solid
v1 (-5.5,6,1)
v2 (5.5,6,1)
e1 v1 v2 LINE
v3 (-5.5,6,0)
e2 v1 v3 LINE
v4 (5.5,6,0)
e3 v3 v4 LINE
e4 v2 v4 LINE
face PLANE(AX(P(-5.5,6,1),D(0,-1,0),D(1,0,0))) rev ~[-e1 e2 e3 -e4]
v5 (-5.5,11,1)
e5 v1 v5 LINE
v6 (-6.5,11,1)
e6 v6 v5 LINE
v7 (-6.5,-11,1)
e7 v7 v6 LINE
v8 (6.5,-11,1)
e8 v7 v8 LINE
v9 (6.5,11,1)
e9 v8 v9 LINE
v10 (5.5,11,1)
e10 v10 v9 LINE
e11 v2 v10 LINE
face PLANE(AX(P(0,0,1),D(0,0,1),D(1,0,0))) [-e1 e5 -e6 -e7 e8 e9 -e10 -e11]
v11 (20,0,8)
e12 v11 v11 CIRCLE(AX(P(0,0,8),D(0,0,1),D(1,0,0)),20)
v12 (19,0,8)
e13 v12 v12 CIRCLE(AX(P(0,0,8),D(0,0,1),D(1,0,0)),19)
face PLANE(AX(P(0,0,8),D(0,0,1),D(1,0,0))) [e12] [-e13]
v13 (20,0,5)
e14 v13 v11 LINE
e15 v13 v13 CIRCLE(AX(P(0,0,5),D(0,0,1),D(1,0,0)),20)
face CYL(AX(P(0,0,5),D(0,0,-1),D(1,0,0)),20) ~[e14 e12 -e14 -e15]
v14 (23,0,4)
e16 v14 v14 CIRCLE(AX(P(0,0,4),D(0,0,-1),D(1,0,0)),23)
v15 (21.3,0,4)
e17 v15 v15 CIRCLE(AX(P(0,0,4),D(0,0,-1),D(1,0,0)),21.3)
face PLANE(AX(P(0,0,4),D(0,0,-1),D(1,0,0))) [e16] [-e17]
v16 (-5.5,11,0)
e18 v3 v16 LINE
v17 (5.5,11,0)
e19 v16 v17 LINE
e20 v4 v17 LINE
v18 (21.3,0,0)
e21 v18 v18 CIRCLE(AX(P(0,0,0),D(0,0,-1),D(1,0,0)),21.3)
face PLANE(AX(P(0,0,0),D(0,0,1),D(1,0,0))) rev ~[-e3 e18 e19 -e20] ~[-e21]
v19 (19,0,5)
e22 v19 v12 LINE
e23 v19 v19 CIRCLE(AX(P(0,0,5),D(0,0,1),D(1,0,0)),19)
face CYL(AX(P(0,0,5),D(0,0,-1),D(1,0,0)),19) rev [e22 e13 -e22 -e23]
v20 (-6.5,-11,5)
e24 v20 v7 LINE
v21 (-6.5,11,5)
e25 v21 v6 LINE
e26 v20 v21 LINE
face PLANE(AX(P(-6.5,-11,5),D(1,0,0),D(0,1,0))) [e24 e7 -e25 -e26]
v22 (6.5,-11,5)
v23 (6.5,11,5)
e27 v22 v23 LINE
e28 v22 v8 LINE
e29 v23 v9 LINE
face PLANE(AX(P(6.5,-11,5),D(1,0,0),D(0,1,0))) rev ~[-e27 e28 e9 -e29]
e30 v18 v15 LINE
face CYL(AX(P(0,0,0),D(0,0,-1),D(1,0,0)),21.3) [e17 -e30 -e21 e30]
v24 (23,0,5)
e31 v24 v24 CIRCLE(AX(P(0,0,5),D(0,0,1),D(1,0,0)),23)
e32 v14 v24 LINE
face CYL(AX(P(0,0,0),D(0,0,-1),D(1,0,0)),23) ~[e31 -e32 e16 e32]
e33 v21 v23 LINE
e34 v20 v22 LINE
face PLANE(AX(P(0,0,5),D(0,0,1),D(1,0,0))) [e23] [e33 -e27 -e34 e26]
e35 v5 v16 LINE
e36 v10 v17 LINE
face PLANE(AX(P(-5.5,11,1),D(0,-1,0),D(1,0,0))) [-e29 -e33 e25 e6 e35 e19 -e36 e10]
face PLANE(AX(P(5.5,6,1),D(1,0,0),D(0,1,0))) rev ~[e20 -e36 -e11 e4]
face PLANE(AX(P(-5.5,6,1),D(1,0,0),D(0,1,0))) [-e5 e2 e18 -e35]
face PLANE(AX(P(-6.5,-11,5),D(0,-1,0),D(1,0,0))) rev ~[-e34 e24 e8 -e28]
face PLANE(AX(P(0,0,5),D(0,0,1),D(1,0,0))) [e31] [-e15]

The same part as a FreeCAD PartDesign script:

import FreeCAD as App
import Part
import Sketcher
from FreeCAD import Vector

doc = App.newDocument("Part")
body = doc.addObject("PartDesign::Body", "Body")

# Sketch on XY plane
sketch1 = body.newObject("Sketcher::SketchObject", "Sketch")
sketch1.AttachmentSupport = (doc.getObject("XY_Plane"), [""])
sketch1.MapMode = "FlatFace"
sketch1.addGeometry(Part.Circle(Vector(0, 0, 0), Vector(0, 0, 1), 23), False)
sketch1.addConstraint([
    Sketcher.Constraint("Coincident", 0, 3, -1, 1),
    Sketcher.Constraint("Diameter", 0, 46.0),
])
pad1 = body.newObject("PartDesign::Pad", "Pad")
pad1.Profile = sketch1
pad1.Length = 5

# Sketch on XY plane
sketch2 = body.newObject("Sketcher::SketchObject", "Sketch001")
sketch2.AttachmentSupport = (doc.getObject("XY_Plane"), [""])
sketch2.MapMode = "FlatFace"
sketch2.AttachmentOffset = App.Placement(Vector(0, 0, 5), App.Rotation())
sketch2.addGeometry([
    Part.LineSegment(Vector(-6, 11, 0), Vector(-6, -11, 0)),
    Part.LineSegment(Vector(-6, -11, 0), Vector(6, -11, 0)),
    Part.LineSegment(Vector(6, -11, 0), Vector(6, 11, 0)),
    Part.LineSegment(Vector(6, 11, 0), Vector(-6, 11, 0)),
], False)
sketch2.addConstraint([
    Sketcher.Constraint("Coincident", 0, 2, 1, 1),
    Sketcher.Constraint("Coincident", 1, 2, 2, 1),
    Sketcher.Constraint("Coincident", 2, 2, 3, 1),
    Sketcher.Constraint("Coincident", 3, 2, 0, 1),
    Sketcher.Constraint("Vertical", 0),
    Sketcher.Constraint("Horizontal", 1),
    Sketcher.Constraint("Vertical", 2),
    Sketcher.Constraint("Horizontal", 3),
    Sketcher.Constraint("Symmetric", 0, 2, 2, 2, -1, 1),
    Sketcher.Constraint("DistanceX", 1, 1, 1, 2, 13.0),
    Sketcher.Constraint("DistanceY", 0, 2, 0, 1, 22.0),
])
pocket1 = body.newObject("PartDesign::Pocket", "Pocket")
pocket1.Profile = sketch2
pocket1.Length = 4

# Sketch on XY plane
sketch3 = body.newObject("Sketcher::SketchObject", "Sketch002")
sketch3.AttachmentSupport = (doc.getObject("XY_Plane"), [""])
sketch3.MapMode = "FlatFace"
sketch3.AttachmentOffset = App.Placement(Vector(0, 0, 1), App.Rotation())
sketch3.addGeometry([
    Part.LineSegment(Vector(-6, 11, 0), Vector(-6, 6, 0)),
    Part.LineSegment(Vector(-6, 6, 0), Vector(6, 6, 0)),
    Part.LineSegment(Vector(6, 6, 0), Vector(6, 11, 0)),
    Part.LineSegment(Vector(6, 11, 0), Vector(-6, 11, 0)),
], False)
sketch3.addConstraint([
    Sketcher.Constraint("Coincident", 0, 2, 1, 1),
    Sketcher.Constraint("Coincident", 1, 2, 2, 1),
    Sketcher.Constraint("Coincident", 2, 2, 3, 1),
    Sketcher.Constraint("Coincident", 3, 2, 0, 1),
    Sketcher.Constraint("Vertical", 0),
    Sketcher.Constraint("Horizontal", 1),
    Sketcher.Constraint("Vertical", 2),
    Sketcher.Constraint("Horizontal", 3),
    Sketcher.Constraint("DistanceX", 1, 1, 1, 2, 11.0),
    Sketcher.Constraint("DistanceY", 0, 2, 0, 1, 5.0),
    Sketcher.Constraint("DistanceY", -1, 1, 0, 2, 6.0),
    Sketcher.Constraint("DistanceX", 0, 2, -1, 1, 5.5),
])
pocket2 = body.newObject("PartDesign::Pocket", "Pocket001")
pocket2.Profile = sketch3
pocket2.Type = "ThroughAll"

# Sketch on XY plane
sketch4 = body.newObject("Sketcher::SketchObject", "Sketch003")
sketch4.AttachmentSupport = (doc.getObject("XY_Plane"), [""])
sketch4.MapMode = "FlatFace"
sketch4.AttachmentOffset = App.Placement(Vector(0, 0, 5), App.Rotation())
sketch4.addGeometry([
    Part.Circle(Vector(0, 0, 0), Vector(0, 0, 1), 20),
    Part.Circle(Vector(0, 0, 0), Vector(0, 0, 1), 19),
], False)
sketch4.addConstraint([
    Sketcher.Constraint("Coincident", 0, 3, -1, 1),
    Sketcher.Constraint("Coincident", 1, 3, -1, 1),
    Sketcher.Constraint("Diameter", 0, 40.0),
    Sketcher.Constraint("Diameter", 1, 38.0),
])
pad2 = body.newObject("PartDesign::Pad", "Pad001")
pad2.Profile = sketch4
pad2.Length = 3

# Sketch on XY plane
sketch5 = body.newObject("Sketcher::SketchObject", "Sketch004")
sketch5.AttachmentSupport = (doc.getObject("XY_Plane"), [""])
sketch5.MapMode = "FlatFace"
sketch5.addGeometry([
    Part.Circle(Vector(0, 0, 0), Vector(0, 0, 1), 23),
    Part.Circle(Vector(0, 0, 0), Vector(0, 0, 1), 21),
], False)
sketch5.addConstraint([
    Sketcher.Constraint("Coincident", 0, 3, -1, 1),
    Sketcher.Constraint("Coincident", 1, 3, -1, 1),
    Sketcher.Constraint("Diameter", 0, 46.0),
    Sketcher.Constraint("Diameter", 1, 42.6),
])
pocket3 = body.newObject("PartDesign::Pocket", "Pocket002")
pocket3.Profile = sketch5
pocket3.Length = 4
pocket3.Reversed = True

doc.recompute()
